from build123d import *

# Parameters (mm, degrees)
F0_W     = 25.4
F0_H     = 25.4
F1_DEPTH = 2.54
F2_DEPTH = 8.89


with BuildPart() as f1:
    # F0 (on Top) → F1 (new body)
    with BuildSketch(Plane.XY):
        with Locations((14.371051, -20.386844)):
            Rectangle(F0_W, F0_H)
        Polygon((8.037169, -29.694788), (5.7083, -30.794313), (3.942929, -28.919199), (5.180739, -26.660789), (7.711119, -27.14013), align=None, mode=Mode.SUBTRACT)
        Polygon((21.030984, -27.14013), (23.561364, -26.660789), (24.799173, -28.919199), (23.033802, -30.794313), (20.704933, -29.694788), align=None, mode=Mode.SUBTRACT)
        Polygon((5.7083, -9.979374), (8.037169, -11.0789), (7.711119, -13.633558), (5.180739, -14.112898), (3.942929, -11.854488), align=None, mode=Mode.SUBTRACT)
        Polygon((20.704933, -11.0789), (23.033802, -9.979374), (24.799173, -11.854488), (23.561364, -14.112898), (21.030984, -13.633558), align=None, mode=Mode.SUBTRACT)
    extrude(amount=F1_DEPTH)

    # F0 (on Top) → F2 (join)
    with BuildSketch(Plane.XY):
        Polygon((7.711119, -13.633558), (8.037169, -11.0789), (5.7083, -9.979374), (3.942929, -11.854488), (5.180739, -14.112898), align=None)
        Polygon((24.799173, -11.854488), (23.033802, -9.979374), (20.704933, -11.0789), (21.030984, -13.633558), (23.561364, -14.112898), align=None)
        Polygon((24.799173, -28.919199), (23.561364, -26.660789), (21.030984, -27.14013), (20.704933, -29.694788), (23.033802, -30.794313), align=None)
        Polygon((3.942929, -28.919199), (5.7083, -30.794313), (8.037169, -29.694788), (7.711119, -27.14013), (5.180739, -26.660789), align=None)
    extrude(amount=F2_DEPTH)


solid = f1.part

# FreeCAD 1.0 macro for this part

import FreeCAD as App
import Part
import Sketcher
Q = App.Units.Quantity

doc = App.newDocument("Part")
body = doc.addObject("PartDesign::Body", "Body")

# Sketch on XY plane
sketch1 = doc.addObject("Sketcher::SketchObject", "Sketch")
body.addObject(sketch1)
sketch1.AttachmentSupport = (doc.XY_Plane, [""])
sketch1.MapMode = "FlatFace"
sketch1.addGeometry([
    Part.LineSegment(App.Vector(1.7, -7.7, 0), App.Vector(1.7, -33.1, 0)),  # 0
    Part.LineSegment(App.Vector(1.7, -33.1, 0), App.Vector(27.1, -33.1, 0)),  # 1
    Part.LineSegment(App.Vector(27.1, -33.1, 0), App.Vector(27.1, -7.7, 0)),  # 2
    Part.LineSegment(App.Vector(27.1, -7.7, 0), App.Vector(1.7, -7.7, 0)),  # 3
    Part.LineSegment(App.Vector(7.7, -27.1, 0), App.Vector(8, -29.7, 0)),  # 4
    Part.LineSegment(App.Vector(8, -29.7, 0), App.Vector(5.7, -30.8, 0)),  # 5
    Part.LineSegment(App.Vector(5.7, -30.8, 0), App.Vector(3.9, -28.9, 0)),  # 6
    Part.LineSegment(App.Vector(3.9, -28.9, 0), App.Vector(5.2, -26.7, 0)),  # 7
    Part.LineSegment(App.Vector(5.2, -26.7, 0), App.Vector(7.7, -27.1, 0)),  # 8
    Part.LineSegment(App.Vector(20.7, -29.7, 0), App.Vector(21, -27.1, 0)),  # 9
    Part.LineSegment(App.Vector(21, -27.1, 0), App.Vector(23.6, -26.7, 0)),  # 10
    Part.LineSegment(App.Vector(23.6, -26.7, 0), App.Vector(24.8, -28.9, 0)),  # 11
    Part.LineSegment(App.Vector(24.8, -28.9, 0), App.Vector(23, -30.8, 0)),  # 12
    Part.LineSegment(App.Vector(23, -30.8, 0), App.Vector(20.7, -29.7, 0)),  # 13
    Part.LineSegment(App.Vector(3.9, -11.9, 0), App.Vector(5.7, -10, 0)),  # 14
    Part.LineSegment(App.Vector(5.7, -10, 0), App.Vector(8, -11.1, 0)),  # 15
    Part.LineSegment(App.Vector(8, -11.1, 0), App.Vector(7.7, -13.6, 0)),  # 16
    Part.LineSegment(App.Vector(7.7, -13.6, 0), App.Vector(5.2, -14.1, 0)),  # 17
    Part.LineSegment(App.Vector(5.2, -14.1, 0), App.Vector(3.9, -11.9, 0)),  # 18
    Part.LineSegment(App.Vector(21, -13.6, 0), App.Vector(20.7, -11.1, 0)),  # 19
    Part.LineSegment(App.Vector(20.7, -11.1, 0), App.Vector(23, -10, 0)),  # 20
    Part.LineSegment(App.Vector(23, -10, 0), App.Vector(24.8, -11.9, 0)),  # 21
    Part.LineSegment(App.Vector(24.8, -11.9, 0), App.Vector(23.6, -14.1, 0)),  # 22
    Part.LineSegment(App.Vector(23.6, -14.1, 0), App.Vector(21, -13.6, 0)),  # 23
], False)
sketch1.addConstraint([
    Sketcher.Constraint("Coincident", 0, 2, 1, 1),
    Sketcher.Constraint("Coincident", 1, 2, 2, 1),
    Sketcher.Constraint("Coincident", 2, 2, 3, 1),
    Sketcher.Constraint("Coincident", 3, 2, 0, 1),
    Sketcher.Constraint("Coincident", 4, 2, 5, 1),
    Sketcher.Constraint("Coincident", 5, 2, 6, 1),
    Sketcher.Constraint("Coincident", 6, 2, 7, 1),
    Sketcher.Constraint("Coincident", 7, 2, 8, 1),
    Sketcher.Constraint("Coincident", 8, 2, 4, 1),
    Sketcher.Constraint("Coincident", 9, 2, 10, 1),
    Sketcher.Constraint("Coincident", 10, 2, 11, 1),
    Sketcher.Constraint("Coincident", 11, 2, 12, 1),
    Sketcher.Constraint("Coincident", 12, 2, 13, 1),
    Sketcher.Constraint("Coincident", 13, 2, 9, 1),
    Sketcher.Constraint("Coincident", 14, 2, 15, 1),
    Sketcher.Constraint("Coincident", 15, 2, 16, 1),
    Sketcher.Constraint("Coincident", 16, 2, 17, 1),
    Sketcher.Constraint("Coincident", 17, 2, 18, 1),
    Sketcher.Constraint("Coincident", 18, 2, 14, 1),
    Sketcher.Constraint("Coincident", 19, 2, 20, 1),
    Sketcher.Constraint("Coincident", 20, 2, 21, 1),
    Sketcher.Constraint("Coincident", 21, 2, 22, 1),
    Sketcher.Constraint("Coincident", 22, 2, 23, 1),
    Sketcher.Constraint("Coincident", 23, 2, 19, 1),
    Sketcher.Constraint("Vertical", 0),
    Sketcher.Constraint("Horizontal", 1),
    Sketcher.Constraint("Vertical", 2),
    Sketcher.Constraint("Horizontal", 3),
    Sketcher.Constraint("Parallel", 12, 14),
    Sketcher.Constraint("Parallel", 13, 15),
    Sketcher.Constraint("Parallel", 9, 16),
    Sketcher.Constraint("Parallel", 10, 17),
    Sketcher.Constraint("Parallel", 11, 18),
    Sketcher.Constraint("Parallel", 4, 19),
    Sketcher.Constraint("Parallel", 5, 20),
    Sketcher.Constraint("Parallel", 6, 21),
    Sketcher.Constraint("Parallel", 7, 22),
    Sketcher.Constraint("Parallel", 8, 23),
    Sketcher.Constraint("Horizontal", 8, 2, 9, 2),
    Sketcher.Constraint("Horizontal", 7, 2, 10, 2),
    Sketcher.Constraint("Horizontal", 6, 2, 11, 2),
    Sketcher.Constraint("Horizontal", 5, 2, 12, 2),
    Sketcher.Constraint("Horizontal", 4, 2, 13, 2),
    Sketcher.Constraint("Horizontal", 15, 2, 19, 2),
    Sketcher.Constraint("Horizontal", 14, 2, 20, 2),
    Sketcher.Constraint("Horizontal", 18, 2, 21, 2),
    Sketcher.Constraint("Horizontal", 17, 2, 22, 2),
    Sketcher.Constraint("Vertical", 5, 2, 14, 2),
    Sketcher.Constraint("Vertical", 4, 2, 15, 2),
    Sketcher.Constraint("Vertical", 8, 2, 16, 2),
    Sketcher.Constraint("Vertical", 7, 2, 17, 2),
    Sketcher.Constraint("Vertical", 6, 2, 18, 2),
    Sketcher.Constraint("Vertical", 13, 2, 19, 2),
    Sketcher.Constraint("Vertical", 12, 2, 20, 2),
    Sketcher.Constraint("Vertical", 11, 2, 21, 2),
    Sketcher.Constraint("Vertical", 10, 2, 22, 2),
    Sketcher.Constraint("Equal", 3, 0),
    Sketcher.Constraint("Equal", 4, 5),
    Sketcher.Constraint("Equal", 5, 6),
    Sketcher.Constraint("Equal", 6, 7),
    Sketcher.Constraint("Equal", 7, 8),
    Sketcher.Constraint("DistanceX", 1, 1, 1, 2, Q("1 in")),
    Sketcher.Constraint("DistanceX", -1, 1, 5, 2, 5.7083),
    Sketcher.Constraint("DistanceY", 6, 2, -1, 1, 28.919199),
    Sketcher.Constraint("DistanceY", 15, 2, -1, 1, 11.0789),
    Sketcher.Constraint("DistanceY", 4, 2, 7, 2, 3.033999),
    Sketcher.Constraint("Distance", 4, 2.575381),
    Sketcher.Constraint("DistanceX", -1, 1, 0, 2, 1.671051),
    Sketcher.Constraint("DistanceX", -1, 1, 4, 2, 8.037169),
    Sketcher.Constraint("DistanceX", -1, 1, 6, 2, 3.942929),
    Sketcher.Constraint("DistanceY", 0, 2, 5, 2, 2.292531),
    Sketcher.Constraint("DistanceX", 11, 2, 1, 2, 2.271878),
])
pad1 = doc.addObject("PartDesign::Pad", "Pad")
body.addObject(pad1)
pad1.Profile = sketch1
pad1.Length = Q("0.1 in")

# Sketch on XY plane
sketch2 = doc.addObject("Sketcher::SketchObject", "Sketch001")
body.addObject(sketch2)
sketch2.AttachmentSupport = (doc.XY_Plane, [""])
sketch2.MapMode = "FlatFace"
sketch2.addGeometry([
    Part.LineSegment(App.Vector(7.7, -13.6, 0), App.Vector(8, -11.1, 0)),  # 0
    Part.LineSegment(App.Vector(8, -11.1, 0), App.Vector(5.7, -10, 0)),  # 1
    Part.LineSegment(App.Vector(5.7, -10, 0), App.Vector(3.9, -11.9, 0)),  # 2
    Part.LineSegment(App.Vector(3.9, -11.9, 0), App.Vector(5.2, -14.1, 0)),  # 3
    Part.LineSegment(App.Vector(5.2, -14.1, 0), App.Vector(7.7, -13.6, 0)),  # 4
    Part.LineSegment(App.Vector(24.8, -11.9, 0), App.Vector(23, -10, 0)),  # 5
    Part.LineSegment(App.Vector(23, -10, 0), App.Vector(20.7, -11.1, 0)),  # 6
    Part.LineSegment(App.Vector(20.7, -11.1, 0), App.Vector(21, -13.6, 0)),  # 7
    Part.LineSegment(App.Vector(21, -13.6, 0), App.Vector(23.6, -14.1, 0)),  # 8
    Part.LineSegment(App.Vector(23.6, -14.1, 0), App.Vector(24.8, -11.9, 0)),  # 9
    Part.LineSegment(App.Vector(24.8, -28.9, 0), App.Vector(23.6, -26.7, 0)),  # 10
    Part.LineSegment(App.Vector(23.6, -26.7, 0), App.Vector(21, -27.1, 0)),  # 11
    Part.LineSegment(App.Vector(21, -27.1, 0), App.Vector(20.7, -29.7, 0)),  # 12
    Part.LineSegment(App.Vector(20.7, -29.7, 0), App.Vector(23, -30.8, 0)),  # 13
    Part.LineSegment(App.Vector(23, -30.8, 0), App.Vector(24.8, -28.9, 0)),  # 14
    Part.LineSegment(App.Vector(3.9, -28.9, 0), App.Vector(5.7, -30.8, 0)),  # 15
    Part.LineSegment(App.Vector(5.7, -30.8, 0), App.Vector(8, -29.7, 0)),  # 16
    Part.LineSegment(App.Vector(8, -29.7, 0), App.Vector(7.7, -27.1, 0)),  # 17
    Part.LineSegment(App.Vector(7.7, -27.1, 0), App.Vector(5.2, -26.7, 0)),  # 18
    Part.LineSegment(App.Vector(5.2, -26.7, 0), App.Vector(3.9, -28.9, 0)),  # 19
], False)
sketch2.addConstraint([
    Sketcher.Constraint("Coincident", 0, 2, 1, 1),
    Sketcher.Constraint("Coincident", 1, 2, 2, 1),
    Sketcher.Constraint("Coincident", 2, 2, 3, 1),
    Sketcher.Constraint("Coincident", 3, 2, 4, 1),
    Sketcher.Constraint("Coincident", 4, 2, 0, 1),
    Sketcher.Constraint("Coincident", 5, 2, 6, 1),
    Sketcher.Constraint("Coincident", 6, 2, 7, 1),
    Sketcher.Constraint("Coincident", 7, 2, 8, 1),
    Sketcher.Constraint("Coincident", 8, 2, 9, 1),
    Sketcher.Constraint("Coincident", 9, 2, 5, 1),
    Sketcher.Constraint("Coincident", 10, 2, 11, 1),
    Sketcher.Constraint("Coincident", 11, 2, 12, 1),
    Sketcher.Constraint("Coincident", 12, 2, 13, 1),
    Sketcher.Constraint("Coincident", 13, 2, 14, 1),
    Sketcher.Constraint("Coincident", 14, 2, 10, 1),
    Sketcher.Constraint("Coincident", 15, 2, 16, 1),
    Sketcher.Constraint("Coincident", 16, 2, 17, 1),
    Sketcher.Constraint("Coincident", 17, 2, 18, 1),
    Sketcher.Constraint("Coincident", 18, 2, 19, 1),
    Sketcher.Constraint("Coincident", 19, 2, 15, 1),
    Sketcher.Constraint("Parallel", 3, 10),
    Sketcher.Constraint("Parallel", 4, 11),
    Sketcher.Constraint("Parallel", 0, 12),
    Sketcher.Constraint("Parallel", 1, 13),
    Sketcher.Constraint("Parallel", 2, 14),
    Sketcher.Constraint("Parallel", 5, 15),
    Sketcher.Constraint("Parallel", 6, 16),
    Sketcher.Constraint("Parallel", 7, 17),
    Sketcher.Constraint("Parallel", 8, 18),
    Sketcher.Constraint("Parallel", 9, 19),
    Sketcher.Constraint("Horizontal", 1, 2, 5, 2),
    Sketcher.Constraint("Horizontal", 0, 2, 6, 2),
    Sketcher.Constraint("Horizontal", 4, 2, 7, 2),
    Sketcher.Constraint("Horizontal", 3, 2, 8, 2),
    Sketcher.Constraint("Horizontal", 2, 2, 9, 2),
    Sketcher.Constraint("Horizontal", 13, 2, 15, 2),
    Sketcher.Constraint("Horizontal", 12, 2, 16, 2),
    Sketcher.Constraint("Horizontal", 11, 2, 17, 2),
    Sketcher.Constraint("Horizontal", 10, 2, 18, 2),
    Sketcher.Constraint("Vertical", 8, 2, 10, 2),
    Sketcher.Constraint("Vertical", 7, 2, 11, 2),
    Sketcher.Constraint("Vertical", 6, 2, 12, 2),
    Sketcher.Constraint("Vertical", 5, 2, 13, 2),
    Sketcher.Constraint("Vertical", 9, 2, 14, 2),
    Sketcher.Constraint("Vertical", 1, 2, 15, 2),
    Sketcher.Constraint("Vertical", 0, 2, 16, 2),
    Sketcher.Constraint("Vertical", 4, 2, 17, 2),
    Sketcher.Constraint("Vertical", 3, 2, 18, 2),
    Sketcher.Constraint("Equal", 0, 1),
    Sketcher.Constraint("Equal", 1, 2),
    Sketcher.Constraint("Equal", 2, 3),
    Sketcher.Constraint("Equal", 3, 4),
    Sketcher.Constraint("DistanceY", 0, 2, -1, 1, 11.0789),
    Sketcher.Constraint("DistanceX", -1, 1, 1, 2, 5.7083),
    Sketcher.Constraint("DistanceY", 14, 2, -1, 1, 28.919199),
    Sketcher.Constraint("DistanceX", 1, 2, 5, 2, 17.325502),
    Sketcher.Constraint("DistanceY", 10, 2, 9, 2, 14.806301),
    Sketcher.Constraint("Distance", 0, 2.575381),
    Sketcher.Constraint("DistanceX", -1, 1, 0, 2, 8.037169),
    Sketcher.Constraint("DistanceX", -1, 1, 2, 2, 3.942929),
])
pad2 = doc.addObject("PartDesign::Pad", "Pad001")
body.addObject(pad2)
pad2.Profile = sketch2
pad2.Length = Q("0.35 in")

doc.recompute()
